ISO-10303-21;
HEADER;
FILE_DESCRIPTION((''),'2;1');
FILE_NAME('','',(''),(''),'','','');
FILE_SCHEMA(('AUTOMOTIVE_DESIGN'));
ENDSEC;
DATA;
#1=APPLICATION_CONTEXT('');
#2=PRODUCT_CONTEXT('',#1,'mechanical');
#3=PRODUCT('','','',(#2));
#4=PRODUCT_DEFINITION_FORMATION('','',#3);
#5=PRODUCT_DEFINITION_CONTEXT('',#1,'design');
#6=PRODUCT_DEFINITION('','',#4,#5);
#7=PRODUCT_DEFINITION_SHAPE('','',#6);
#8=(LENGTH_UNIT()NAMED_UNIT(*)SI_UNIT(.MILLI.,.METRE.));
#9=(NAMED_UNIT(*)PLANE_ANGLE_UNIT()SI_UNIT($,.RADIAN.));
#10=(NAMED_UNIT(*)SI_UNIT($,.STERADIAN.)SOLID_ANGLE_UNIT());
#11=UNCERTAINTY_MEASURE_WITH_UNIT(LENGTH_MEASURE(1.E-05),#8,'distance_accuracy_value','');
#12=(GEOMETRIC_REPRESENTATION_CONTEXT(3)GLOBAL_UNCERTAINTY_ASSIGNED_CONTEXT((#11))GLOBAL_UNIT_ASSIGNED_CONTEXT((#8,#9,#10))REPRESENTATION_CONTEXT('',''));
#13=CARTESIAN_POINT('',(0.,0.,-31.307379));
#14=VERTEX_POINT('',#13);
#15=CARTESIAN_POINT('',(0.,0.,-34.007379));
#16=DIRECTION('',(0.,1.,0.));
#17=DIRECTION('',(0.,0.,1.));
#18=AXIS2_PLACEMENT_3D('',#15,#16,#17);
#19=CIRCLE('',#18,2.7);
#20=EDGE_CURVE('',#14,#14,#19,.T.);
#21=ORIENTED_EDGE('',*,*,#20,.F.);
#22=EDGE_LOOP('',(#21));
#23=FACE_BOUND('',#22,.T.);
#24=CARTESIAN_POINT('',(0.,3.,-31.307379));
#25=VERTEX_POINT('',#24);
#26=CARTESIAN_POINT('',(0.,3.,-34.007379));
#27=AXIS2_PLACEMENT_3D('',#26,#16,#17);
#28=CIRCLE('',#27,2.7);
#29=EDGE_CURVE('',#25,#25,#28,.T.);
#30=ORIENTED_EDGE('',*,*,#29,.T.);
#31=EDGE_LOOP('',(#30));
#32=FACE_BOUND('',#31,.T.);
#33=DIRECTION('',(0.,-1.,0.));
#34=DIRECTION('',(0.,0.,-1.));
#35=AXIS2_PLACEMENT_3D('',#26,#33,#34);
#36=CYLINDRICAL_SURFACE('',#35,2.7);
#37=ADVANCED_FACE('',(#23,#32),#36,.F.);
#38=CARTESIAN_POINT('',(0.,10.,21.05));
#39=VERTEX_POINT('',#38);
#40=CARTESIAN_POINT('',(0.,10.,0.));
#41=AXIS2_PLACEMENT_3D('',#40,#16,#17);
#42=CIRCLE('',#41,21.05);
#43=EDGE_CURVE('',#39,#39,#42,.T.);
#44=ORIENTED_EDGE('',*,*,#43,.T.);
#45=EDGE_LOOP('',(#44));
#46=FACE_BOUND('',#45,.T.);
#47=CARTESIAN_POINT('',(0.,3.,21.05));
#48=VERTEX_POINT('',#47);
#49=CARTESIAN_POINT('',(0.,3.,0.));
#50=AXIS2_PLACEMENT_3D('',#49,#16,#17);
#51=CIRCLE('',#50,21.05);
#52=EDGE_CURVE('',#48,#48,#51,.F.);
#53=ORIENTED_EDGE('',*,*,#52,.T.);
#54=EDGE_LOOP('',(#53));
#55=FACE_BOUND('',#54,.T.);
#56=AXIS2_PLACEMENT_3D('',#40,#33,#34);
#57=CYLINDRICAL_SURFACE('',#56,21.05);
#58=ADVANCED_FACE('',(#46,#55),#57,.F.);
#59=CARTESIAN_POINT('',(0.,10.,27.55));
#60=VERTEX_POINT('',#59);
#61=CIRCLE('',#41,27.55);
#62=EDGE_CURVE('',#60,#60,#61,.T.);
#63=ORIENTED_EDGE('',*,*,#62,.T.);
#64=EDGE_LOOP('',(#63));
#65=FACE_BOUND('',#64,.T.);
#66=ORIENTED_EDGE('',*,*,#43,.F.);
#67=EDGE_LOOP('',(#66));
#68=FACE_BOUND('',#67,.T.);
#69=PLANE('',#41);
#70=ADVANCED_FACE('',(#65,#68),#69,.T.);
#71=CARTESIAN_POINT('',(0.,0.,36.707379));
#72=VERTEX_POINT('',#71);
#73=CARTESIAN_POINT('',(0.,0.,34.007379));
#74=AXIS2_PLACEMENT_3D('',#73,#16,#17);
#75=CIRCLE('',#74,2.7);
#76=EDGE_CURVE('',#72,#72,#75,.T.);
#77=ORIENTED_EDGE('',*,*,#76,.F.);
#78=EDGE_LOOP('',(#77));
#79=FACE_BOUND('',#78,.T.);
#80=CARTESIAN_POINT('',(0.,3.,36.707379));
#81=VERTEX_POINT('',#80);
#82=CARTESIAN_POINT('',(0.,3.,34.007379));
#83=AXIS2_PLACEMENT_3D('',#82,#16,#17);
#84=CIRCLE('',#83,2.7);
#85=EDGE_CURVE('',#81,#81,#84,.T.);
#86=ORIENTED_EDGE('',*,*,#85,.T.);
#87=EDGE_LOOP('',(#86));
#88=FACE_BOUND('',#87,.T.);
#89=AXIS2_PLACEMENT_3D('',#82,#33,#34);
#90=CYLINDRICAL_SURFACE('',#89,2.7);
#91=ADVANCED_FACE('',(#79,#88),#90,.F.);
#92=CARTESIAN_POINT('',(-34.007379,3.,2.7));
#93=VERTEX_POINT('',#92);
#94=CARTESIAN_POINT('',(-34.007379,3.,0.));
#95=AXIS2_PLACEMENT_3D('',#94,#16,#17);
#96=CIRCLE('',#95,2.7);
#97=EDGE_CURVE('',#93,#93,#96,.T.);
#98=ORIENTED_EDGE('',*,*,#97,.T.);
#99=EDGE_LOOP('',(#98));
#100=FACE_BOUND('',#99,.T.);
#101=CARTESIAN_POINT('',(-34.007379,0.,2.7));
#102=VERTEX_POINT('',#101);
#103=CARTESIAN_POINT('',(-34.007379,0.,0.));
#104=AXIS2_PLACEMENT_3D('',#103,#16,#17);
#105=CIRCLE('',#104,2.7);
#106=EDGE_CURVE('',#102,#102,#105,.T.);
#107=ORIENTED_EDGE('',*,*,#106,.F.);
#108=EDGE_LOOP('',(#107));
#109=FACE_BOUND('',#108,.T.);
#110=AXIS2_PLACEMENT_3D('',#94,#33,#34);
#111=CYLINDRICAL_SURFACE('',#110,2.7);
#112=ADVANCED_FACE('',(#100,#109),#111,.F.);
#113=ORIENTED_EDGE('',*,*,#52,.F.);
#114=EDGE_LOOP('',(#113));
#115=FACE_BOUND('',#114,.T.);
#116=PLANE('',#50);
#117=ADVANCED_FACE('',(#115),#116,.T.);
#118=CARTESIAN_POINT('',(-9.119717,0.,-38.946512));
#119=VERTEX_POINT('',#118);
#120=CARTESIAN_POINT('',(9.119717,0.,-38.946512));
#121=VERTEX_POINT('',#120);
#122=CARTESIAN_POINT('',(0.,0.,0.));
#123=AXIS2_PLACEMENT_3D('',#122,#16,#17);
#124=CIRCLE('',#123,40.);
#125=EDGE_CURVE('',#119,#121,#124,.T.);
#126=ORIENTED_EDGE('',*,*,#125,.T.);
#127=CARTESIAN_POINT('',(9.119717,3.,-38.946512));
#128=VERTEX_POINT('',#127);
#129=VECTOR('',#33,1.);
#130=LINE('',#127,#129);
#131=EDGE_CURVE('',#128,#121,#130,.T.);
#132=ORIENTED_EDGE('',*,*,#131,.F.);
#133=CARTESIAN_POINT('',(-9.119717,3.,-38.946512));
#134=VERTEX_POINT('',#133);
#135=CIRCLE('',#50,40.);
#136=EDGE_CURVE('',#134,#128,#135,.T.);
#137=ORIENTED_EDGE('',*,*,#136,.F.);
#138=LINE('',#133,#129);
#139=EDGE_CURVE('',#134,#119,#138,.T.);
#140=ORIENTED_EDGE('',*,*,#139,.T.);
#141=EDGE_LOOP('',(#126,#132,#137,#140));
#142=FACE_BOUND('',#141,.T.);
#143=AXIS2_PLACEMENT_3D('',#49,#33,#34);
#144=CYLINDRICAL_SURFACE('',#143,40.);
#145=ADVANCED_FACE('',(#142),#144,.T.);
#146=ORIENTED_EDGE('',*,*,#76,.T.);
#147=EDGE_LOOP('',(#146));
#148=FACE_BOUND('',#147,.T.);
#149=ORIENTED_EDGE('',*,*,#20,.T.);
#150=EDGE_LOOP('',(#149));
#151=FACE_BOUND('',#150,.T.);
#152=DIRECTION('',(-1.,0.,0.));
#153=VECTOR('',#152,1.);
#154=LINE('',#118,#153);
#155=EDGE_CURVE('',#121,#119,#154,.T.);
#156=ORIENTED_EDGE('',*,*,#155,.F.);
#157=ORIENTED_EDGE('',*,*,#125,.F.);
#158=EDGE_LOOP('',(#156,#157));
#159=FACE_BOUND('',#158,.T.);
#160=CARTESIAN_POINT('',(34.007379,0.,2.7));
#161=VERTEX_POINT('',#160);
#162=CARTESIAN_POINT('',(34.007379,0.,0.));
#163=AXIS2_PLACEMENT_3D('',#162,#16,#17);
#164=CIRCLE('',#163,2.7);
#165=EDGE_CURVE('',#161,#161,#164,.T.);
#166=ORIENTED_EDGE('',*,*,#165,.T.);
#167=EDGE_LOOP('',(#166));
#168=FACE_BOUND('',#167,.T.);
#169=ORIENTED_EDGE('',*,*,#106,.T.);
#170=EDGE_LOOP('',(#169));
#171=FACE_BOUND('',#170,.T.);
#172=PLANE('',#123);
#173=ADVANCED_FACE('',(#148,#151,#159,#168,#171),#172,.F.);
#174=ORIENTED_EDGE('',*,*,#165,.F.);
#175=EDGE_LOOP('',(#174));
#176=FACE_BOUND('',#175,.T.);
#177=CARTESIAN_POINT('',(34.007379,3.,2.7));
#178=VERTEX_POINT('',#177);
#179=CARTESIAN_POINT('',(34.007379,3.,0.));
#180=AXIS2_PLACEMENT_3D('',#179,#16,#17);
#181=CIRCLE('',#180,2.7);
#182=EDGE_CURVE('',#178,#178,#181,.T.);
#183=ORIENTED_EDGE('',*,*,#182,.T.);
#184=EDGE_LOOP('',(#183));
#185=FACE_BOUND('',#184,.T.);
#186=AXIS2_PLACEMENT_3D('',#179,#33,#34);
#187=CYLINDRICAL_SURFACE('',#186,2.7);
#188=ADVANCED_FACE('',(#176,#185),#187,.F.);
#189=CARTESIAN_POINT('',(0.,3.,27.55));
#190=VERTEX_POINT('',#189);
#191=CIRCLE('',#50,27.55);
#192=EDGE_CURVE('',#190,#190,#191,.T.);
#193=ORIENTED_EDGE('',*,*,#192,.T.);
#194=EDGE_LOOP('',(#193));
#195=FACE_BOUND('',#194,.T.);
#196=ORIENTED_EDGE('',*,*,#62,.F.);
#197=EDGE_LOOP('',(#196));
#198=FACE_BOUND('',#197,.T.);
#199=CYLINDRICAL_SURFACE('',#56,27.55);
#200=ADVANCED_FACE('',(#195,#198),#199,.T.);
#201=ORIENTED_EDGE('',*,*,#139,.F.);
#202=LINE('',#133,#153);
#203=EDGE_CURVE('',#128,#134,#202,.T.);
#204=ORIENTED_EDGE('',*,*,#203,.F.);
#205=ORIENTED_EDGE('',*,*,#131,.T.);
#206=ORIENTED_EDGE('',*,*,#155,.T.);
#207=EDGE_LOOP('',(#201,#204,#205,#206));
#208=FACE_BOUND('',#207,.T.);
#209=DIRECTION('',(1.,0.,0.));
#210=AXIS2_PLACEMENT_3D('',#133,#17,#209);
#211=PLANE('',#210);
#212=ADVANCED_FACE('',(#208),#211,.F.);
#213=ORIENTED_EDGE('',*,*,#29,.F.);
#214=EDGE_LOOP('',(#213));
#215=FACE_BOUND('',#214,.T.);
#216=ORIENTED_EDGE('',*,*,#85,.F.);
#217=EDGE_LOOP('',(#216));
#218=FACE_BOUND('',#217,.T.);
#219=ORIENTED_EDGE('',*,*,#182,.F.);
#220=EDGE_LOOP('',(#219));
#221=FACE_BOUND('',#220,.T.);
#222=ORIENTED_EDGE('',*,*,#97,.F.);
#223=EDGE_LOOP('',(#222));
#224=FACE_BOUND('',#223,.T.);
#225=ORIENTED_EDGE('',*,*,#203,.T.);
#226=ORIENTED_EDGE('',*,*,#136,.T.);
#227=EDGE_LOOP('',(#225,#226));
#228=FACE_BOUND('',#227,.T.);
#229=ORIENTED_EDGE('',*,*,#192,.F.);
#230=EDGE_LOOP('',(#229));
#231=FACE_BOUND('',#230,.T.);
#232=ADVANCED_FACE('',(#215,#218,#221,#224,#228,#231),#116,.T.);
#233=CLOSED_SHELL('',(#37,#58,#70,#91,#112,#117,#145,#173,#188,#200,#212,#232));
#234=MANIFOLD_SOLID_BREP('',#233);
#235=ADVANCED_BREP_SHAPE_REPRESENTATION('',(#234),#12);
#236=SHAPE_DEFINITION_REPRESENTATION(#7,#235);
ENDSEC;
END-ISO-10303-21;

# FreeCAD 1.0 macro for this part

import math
import FreeCAD as App
import Part
import Sketcher

V = App.Vector
Q = App.Units.Quantity

doc = App.newDocument("Part")
body = doc.addObject("PartDesign::Body", "Body")

# Sketch on XZ plane
sketch1 = doc.addObject("Sketcher::SketchObject", "Sketch")
body.addObject(sketch1)
sketch1.AttachmentSupport = (doc.XZ_Plane, [""])
sketch1.MapMode = "FlatFace"
sketch1.addGeometry([
    Part.LineSegment(V(9.1, -38.9, 0), V(-9.1, -38.9, 0)),  # 0
    Part.ArcOfCircle(Part.Circle(V(0, 0, 0), V(0, 0, 1), 40), math.radians(-77), math.radians(257)),  # 1
    Part.Circle(V(0, 34, 0), V(0, 0, 1), 2.7),  # 2
    Part.Circle(V(34, 0, 0), V(0, 0, 1), 2.7),  # 3
    Part.Circle(V(-34, 0, 0), V(0, 0, 1), 2.7),  # 4
    Part.Circle(V(0, -34, 0), V(0, 0, 1), 2.7),  # 5
], False)
sketch1.addConstraint([
    Sketcher.Constraint("Coincident", 0, 1, 1, 1),
    Sketcher.Constraint("Coincident", 1, 2, 0, 2),
    Sketcher.Constraint("Horizontal", 0),
    Sketcher.Constraint("Coincident", 1, 3, -1, 1),
    Sketcher.Constraint("Equal", 2, 3),
    Sketcher.Constraint("Equal", 3, 4),
    Sketcher.Constraint("Equal", 4, 5),
    Sketcher.Constraint("Symmetric", 3, 3, 4, 3, -1, 1),
    Sketcher.Constraint("Symmetric", 2, 3, 5, 3, -1, 1),
    Sketcher.Constraint("PointOnObject", 2, 3, -2),
    Sketcher.Constraint("PointOnObject", 3, 3, -1),
    Sketcher.Constraint("Radius", 1, Q("40 mm")),
    Sketcher.Constraint("Diameter", 2, Q("5.4 mm")),
    Sketcher.Constraint("DistanceX", 0, 2, 0, 1, Q("18.239433 mm")),
    Sketcher.Constraint("DistanceY", -1, 1, 2, 3, Q("34.007379 mm")),
    Sketcher.Constraint("DistanceX", -1, 1, 3, 3, Q("34.007379 mm")),
])
pad1 = doc.addObject("PartDesign::Pad", "Pad")
body.addObject(pad1)
pad1.Profile = sketch1
pad1.Length = 3
pad1.Reversed = True

# Sketch on XZ plane
sketch2 = doc.addObject("Sketcher::SketchObject", "Sketch001")
body.addObject(sketch2)
sketch2.AttachmentSupport = (doc.XZ_Plane, [""])
sketch2.MapMode = "FlatFace"
sketch2.AttachmentOffset = App.Placement(V(0, 0, -3), App.Rotation())
sketch2.addGeometry([
    Part.Circle(V(0, 0, 0), V(0, 0, 1), 28),
    Part.Circle(V(0, 0, 0), V(0, 0, 1), 21),
], False)
sketch2.addConstraint([
    Sketcher.Constraint("Coincident", 0, 3, -1, 1),
    Sketcher.Constraint("Coincident", 1, 3, -1, 1),
    Sketcher.Constraint("Diameter", 0, Q("55.1 mm")),
    Sketcher.Constraint("Diameter", 1, Q("42.1 mm")),
])
pad2 = doc.addObject("PartDesign::Pad", "Pad001")
body.addObject(pad2)
pad2.Profile = sketch2
pad2.Length = 7
pad2.Reversed = True

doc.recompute()
